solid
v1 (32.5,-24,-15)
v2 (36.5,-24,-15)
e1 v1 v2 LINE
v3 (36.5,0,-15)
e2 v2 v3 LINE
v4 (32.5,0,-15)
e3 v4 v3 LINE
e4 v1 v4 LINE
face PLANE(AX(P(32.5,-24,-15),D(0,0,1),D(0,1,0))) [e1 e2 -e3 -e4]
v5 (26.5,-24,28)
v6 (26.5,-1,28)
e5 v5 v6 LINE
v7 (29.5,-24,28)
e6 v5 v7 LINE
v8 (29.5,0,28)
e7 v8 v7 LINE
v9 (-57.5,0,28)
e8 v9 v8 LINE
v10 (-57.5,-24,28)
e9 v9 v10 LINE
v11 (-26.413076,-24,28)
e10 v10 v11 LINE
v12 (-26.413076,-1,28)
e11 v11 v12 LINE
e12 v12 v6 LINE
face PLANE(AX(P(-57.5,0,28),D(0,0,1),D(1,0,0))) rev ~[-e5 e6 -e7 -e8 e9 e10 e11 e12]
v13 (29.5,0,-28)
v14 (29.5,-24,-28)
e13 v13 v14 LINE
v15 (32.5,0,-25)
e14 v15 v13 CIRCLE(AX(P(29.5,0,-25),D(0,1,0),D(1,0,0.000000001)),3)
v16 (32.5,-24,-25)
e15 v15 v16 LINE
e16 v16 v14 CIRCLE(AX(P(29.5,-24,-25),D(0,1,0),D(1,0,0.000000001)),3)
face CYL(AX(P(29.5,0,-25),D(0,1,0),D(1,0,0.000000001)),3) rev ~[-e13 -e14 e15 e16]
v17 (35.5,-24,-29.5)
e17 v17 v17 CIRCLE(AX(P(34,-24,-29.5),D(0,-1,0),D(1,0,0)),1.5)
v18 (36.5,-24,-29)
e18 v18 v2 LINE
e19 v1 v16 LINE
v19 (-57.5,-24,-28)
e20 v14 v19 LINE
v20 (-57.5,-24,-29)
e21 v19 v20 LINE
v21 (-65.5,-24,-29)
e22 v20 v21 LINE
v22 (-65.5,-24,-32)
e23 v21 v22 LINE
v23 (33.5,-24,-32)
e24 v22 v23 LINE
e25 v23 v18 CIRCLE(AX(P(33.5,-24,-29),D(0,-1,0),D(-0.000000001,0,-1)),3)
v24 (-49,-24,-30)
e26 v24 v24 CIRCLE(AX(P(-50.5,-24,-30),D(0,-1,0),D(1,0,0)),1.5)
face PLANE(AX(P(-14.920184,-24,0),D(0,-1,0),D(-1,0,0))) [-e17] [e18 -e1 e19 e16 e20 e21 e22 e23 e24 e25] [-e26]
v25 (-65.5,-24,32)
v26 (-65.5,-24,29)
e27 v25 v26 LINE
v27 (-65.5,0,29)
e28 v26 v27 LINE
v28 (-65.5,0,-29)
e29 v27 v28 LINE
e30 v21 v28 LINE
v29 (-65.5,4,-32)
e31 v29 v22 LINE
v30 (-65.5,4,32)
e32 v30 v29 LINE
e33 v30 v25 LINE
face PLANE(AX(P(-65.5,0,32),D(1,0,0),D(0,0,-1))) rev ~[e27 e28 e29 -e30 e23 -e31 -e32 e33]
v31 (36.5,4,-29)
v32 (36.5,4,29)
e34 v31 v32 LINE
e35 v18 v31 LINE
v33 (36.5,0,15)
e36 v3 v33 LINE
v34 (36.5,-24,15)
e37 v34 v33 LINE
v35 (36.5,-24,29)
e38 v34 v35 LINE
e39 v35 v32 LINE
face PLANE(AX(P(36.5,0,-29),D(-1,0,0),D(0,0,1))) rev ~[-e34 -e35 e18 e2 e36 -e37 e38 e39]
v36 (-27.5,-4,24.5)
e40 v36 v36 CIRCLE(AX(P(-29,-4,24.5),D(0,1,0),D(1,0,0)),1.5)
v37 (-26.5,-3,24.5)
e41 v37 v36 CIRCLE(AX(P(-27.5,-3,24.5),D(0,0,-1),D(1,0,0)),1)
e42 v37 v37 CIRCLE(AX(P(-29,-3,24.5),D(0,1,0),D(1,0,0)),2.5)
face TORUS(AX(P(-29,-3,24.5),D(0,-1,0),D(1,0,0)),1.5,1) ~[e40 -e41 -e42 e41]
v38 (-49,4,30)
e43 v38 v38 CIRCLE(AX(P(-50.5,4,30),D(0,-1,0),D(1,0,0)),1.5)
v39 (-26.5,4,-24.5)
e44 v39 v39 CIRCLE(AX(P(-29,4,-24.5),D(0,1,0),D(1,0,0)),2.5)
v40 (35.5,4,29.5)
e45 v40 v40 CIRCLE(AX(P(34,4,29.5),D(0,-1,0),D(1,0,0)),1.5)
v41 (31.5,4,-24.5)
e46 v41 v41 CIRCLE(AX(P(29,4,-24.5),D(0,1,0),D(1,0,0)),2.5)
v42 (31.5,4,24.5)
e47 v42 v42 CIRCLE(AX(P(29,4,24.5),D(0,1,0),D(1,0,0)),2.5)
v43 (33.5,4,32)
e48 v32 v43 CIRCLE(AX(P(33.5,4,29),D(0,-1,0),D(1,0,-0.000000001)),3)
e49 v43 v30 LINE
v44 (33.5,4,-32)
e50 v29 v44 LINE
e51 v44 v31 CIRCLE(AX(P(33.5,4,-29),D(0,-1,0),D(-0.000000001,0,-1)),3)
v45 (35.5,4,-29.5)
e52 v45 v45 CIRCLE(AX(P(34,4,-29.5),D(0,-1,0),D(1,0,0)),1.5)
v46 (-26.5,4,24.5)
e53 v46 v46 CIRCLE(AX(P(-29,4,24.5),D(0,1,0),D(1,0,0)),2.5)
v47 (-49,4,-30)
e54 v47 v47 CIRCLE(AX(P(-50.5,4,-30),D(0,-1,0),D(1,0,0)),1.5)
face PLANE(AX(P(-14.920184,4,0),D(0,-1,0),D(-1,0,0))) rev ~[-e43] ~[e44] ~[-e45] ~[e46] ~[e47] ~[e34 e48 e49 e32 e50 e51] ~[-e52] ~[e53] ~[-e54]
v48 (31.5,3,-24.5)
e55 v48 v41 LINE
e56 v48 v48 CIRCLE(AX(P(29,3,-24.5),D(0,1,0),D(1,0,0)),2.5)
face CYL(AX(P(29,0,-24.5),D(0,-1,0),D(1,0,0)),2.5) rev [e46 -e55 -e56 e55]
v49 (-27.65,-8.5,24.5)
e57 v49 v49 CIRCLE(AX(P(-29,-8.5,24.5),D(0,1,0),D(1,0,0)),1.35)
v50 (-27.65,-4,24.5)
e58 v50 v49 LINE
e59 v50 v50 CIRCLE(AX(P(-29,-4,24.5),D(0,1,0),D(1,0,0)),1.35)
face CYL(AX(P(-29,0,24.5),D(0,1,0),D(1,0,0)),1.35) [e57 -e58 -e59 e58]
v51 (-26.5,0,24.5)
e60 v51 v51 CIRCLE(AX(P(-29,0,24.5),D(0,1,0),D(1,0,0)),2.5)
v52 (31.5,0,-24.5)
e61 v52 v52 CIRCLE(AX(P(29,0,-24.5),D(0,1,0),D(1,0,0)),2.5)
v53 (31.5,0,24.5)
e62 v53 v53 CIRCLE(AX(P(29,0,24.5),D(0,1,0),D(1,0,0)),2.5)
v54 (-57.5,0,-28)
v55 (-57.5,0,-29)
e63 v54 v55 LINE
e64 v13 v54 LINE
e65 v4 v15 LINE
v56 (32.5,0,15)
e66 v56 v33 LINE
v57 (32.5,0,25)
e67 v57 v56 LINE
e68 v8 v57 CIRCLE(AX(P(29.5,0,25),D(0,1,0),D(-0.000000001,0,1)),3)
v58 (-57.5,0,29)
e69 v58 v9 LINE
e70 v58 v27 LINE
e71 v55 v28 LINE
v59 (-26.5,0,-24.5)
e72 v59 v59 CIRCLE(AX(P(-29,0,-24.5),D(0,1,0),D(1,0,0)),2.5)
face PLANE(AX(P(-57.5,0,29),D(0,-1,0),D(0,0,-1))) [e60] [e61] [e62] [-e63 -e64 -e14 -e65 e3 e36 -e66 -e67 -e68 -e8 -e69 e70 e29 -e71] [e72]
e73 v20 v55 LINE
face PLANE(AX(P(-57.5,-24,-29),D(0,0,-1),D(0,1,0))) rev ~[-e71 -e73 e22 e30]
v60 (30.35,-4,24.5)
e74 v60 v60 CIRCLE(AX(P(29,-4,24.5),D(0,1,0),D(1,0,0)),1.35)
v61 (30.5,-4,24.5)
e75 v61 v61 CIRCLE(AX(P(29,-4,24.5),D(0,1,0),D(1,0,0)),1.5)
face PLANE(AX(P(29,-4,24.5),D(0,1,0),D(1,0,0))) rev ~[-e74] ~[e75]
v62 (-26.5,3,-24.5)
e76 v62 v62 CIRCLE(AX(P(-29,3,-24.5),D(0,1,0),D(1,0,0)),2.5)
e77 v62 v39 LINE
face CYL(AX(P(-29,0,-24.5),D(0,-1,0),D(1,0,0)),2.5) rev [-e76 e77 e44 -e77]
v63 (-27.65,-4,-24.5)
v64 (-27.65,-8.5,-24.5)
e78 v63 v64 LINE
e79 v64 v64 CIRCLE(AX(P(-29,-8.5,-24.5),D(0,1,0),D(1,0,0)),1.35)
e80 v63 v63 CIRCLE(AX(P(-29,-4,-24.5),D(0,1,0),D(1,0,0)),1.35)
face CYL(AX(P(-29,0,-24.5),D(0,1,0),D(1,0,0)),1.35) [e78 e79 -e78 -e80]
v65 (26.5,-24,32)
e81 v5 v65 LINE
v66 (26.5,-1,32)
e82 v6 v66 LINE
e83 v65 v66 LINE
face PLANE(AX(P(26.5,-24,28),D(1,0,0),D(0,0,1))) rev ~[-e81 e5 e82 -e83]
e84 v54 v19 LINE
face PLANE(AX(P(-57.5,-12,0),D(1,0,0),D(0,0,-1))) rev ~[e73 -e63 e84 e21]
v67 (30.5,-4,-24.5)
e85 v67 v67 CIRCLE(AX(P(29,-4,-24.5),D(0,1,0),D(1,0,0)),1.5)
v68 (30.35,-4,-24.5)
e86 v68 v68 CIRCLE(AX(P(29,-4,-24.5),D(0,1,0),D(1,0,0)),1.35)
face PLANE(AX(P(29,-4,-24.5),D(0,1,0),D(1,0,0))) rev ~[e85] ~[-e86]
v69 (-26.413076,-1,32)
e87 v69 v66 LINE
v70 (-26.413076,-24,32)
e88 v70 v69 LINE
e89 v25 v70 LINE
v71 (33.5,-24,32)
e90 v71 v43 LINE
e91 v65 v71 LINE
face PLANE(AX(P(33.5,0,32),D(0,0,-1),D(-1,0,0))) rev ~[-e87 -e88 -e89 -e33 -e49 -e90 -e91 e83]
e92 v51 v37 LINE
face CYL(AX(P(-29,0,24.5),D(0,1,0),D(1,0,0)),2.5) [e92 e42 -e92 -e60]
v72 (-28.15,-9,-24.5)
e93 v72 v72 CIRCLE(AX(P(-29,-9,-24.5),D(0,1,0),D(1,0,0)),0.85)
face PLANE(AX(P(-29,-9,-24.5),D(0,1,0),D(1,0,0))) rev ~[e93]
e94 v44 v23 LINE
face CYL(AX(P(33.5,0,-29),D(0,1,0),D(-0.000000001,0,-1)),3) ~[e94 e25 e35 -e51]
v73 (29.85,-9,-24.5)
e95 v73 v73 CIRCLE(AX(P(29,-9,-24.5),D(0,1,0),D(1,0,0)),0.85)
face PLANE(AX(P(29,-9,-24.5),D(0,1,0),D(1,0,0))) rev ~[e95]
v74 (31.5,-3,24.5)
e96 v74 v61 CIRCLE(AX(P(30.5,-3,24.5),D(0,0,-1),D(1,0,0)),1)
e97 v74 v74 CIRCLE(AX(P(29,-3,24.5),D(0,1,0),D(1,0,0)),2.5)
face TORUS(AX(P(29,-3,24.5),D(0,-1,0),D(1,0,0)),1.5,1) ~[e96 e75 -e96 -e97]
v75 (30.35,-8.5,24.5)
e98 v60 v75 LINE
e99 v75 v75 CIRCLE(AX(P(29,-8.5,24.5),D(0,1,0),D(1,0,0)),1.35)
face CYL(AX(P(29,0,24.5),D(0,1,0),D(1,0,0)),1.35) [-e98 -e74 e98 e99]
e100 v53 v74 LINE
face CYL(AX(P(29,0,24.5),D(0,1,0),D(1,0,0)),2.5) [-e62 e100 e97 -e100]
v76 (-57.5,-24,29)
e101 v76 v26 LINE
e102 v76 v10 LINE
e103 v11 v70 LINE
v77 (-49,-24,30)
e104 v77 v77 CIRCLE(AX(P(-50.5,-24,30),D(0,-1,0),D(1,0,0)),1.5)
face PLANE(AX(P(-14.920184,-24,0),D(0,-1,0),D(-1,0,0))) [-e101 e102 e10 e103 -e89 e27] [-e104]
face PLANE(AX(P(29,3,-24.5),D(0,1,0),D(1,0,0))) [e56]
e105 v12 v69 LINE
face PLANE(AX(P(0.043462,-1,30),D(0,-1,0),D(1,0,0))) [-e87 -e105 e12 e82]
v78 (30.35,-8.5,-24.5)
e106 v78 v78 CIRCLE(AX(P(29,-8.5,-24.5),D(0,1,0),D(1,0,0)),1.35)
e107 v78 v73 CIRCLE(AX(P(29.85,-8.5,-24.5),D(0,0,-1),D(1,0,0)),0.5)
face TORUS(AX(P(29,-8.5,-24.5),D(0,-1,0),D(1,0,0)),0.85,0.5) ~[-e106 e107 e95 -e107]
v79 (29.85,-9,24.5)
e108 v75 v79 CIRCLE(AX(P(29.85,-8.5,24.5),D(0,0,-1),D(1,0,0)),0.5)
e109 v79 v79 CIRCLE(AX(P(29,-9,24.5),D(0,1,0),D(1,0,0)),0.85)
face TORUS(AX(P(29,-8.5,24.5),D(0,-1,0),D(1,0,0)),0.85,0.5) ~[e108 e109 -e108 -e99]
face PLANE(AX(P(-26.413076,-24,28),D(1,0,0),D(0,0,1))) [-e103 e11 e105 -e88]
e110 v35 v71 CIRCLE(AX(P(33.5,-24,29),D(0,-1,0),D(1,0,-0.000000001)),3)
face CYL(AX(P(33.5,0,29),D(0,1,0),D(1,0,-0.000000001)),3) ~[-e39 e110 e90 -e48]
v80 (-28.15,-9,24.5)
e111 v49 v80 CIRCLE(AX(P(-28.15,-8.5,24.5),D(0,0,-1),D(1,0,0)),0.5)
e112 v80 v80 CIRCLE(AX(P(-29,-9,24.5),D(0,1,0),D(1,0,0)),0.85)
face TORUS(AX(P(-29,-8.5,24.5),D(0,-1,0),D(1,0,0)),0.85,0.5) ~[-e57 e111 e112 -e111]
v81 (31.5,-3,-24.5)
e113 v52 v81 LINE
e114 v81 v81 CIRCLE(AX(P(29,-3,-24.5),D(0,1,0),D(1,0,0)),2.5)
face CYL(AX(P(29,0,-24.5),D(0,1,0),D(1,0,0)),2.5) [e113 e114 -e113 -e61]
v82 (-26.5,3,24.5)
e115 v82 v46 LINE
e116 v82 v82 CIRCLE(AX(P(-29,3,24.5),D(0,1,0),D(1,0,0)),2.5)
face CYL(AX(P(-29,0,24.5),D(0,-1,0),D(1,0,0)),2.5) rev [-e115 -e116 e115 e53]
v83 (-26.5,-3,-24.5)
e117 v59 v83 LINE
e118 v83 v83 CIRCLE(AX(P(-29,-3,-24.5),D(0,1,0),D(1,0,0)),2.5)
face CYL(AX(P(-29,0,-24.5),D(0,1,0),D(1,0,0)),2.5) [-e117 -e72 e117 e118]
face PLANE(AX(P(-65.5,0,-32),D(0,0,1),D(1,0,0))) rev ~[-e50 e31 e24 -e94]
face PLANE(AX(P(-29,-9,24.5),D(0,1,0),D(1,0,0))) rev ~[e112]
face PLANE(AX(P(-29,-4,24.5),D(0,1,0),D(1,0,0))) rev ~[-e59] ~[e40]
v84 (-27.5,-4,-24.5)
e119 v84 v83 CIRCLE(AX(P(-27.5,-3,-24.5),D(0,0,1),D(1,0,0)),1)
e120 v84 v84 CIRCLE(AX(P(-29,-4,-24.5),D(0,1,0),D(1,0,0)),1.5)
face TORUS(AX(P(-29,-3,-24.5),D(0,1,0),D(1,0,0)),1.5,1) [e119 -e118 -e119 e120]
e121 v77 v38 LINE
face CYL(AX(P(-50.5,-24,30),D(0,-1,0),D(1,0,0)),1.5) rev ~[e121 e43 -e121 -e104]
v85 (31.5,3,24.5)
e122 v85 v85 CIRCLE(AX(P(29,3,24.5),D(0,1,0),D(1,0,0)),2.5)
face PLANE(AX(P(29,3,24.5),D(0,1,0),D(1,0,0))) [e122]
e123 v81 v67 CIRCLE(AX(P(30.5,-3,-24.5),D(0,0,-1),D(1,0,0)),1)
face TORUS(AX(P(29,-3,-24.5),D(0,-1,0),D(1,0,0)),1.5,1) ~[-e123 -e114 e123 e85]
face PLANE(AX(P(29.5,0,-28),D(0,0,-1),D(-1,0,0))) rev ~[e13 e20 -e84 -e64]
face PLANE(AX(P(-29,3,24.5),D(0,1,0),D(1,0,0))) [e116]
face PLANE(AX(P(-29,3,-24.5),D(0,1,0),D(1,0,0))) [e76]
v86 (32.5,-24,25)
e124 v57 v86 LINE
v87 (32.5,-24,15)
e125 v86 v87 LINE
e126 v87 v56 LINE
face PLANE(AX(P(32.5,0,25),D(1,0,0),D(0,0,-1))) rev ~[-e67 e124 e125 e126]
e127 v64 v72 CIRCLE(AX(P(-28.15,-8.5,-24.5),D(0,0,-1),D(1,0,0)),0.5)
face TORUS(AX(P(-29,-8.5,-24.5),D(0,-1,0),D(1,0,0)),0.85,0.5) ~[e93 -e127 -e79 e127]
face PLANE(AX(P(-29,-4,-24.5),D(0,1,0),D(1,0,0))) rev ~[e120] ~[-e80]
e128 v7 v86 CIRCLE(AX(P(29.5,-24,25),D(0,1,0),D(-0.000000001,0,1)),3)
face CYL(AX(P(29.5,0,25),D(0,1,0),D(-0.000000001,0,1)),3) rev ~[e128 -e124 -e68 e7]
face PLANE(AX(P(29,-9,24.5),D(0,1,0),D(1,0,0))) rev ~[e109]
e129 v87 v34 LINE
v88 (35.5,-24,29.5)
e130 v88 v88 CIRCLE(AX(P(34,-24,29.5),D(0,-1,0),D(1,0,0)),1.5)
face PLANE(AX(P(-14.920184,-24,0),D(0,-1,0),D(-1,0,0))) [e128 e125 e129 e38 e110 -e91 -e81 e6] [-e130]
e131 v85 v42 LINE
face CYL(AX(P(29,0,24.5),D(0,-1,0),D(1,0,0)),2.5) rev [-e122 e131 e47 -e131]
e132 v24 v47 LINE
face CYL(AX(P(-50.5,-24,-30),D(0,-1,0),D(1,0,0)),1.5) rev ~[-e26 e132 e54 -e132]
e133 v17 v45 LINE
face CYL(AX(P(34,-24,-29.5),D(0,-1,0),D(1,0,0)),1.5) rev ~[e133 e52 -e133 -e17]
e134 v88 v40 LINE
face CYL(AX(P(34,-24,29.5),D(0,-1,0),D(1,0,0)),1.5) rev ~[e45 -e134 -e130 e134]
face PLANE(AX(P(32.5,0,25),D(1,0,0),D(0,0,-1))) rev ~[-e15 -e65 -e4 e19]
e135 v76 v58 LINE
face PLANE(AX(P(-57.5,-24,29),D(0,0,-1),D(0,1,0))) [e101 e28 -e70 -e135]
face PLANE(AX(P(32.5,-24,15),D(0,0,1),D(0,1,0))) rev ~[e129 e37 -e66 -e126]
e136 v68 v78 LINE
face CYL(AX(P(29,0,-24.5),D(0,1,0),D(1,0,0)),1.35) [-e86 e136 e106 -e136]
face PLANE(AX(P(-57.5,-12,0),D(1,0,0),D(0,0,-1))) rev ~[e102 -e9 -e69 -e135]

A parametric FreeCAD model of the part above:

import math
import FreeCAD as App
import Part
import Sketcher


def edges_at(feature, points):
    """Names of the edges that pass closest to the given points."""
    edges = feature.Shape.Edges
    near = lambda p: min(range(len(edges)), key=lambda i: edges[i].distToShape(Part.Vertex(*p))[0])
    return sorted({f"Edge{near(p) + 1}" for p in points})


def add_polygon(sketch, points):
    """Adds a closed chain of lines whose ends are joined by coincident constraints."""
    first, n = sketch.GeometryCount, len(points)
    for a, b in zip(points, points[1:] + points[:1]):
        sketch.addGeometry(Part.LineSegment(App.Vector(*a, 0), App.Vector(*b, 0)), False)
    for i in range(n):
        sketch.addConstraint(Sketcher.Constraint("Coincident", first + i, 2, first + (i + 1) % n, 1))

doc = App.newDocument("Part")
body = doc.addObject("PartDesign::Body", "Body")

# Sketch on XZ plane
sketch1 = body.newObject("Sketcher::SketchObject", "Sketch")
sketch1.AttachmentSupport = (doc.getObject("XZ_Plane"), [""])
sketch1.MapMode = "FlatFace"
sketch1.addGeometry(Part.Circle(App.Vector(-29, -24.5, 0), App.Vector(0, 0, 1), 1.4), False)
sketch1.addConstraint(Sketcher.Constraint("Diameter", 0, 2.7))
sketch1.addConstraint(Sketcher.Constraint("DistanceX", 0, 3, -1, 1, 29.0))
sketch1.addConstraint(Sketcher.Constraint("DistanceY", 0, 3, -1, 1, 24.5))
pad1 = body.newObject("PartDesign::Pad", "Pad")
pad1.Profile = sketch1
pad1.Length = 4
pad1.Reversed = True
body2 = doc.addObject("PartDesign::Body", "Body001")

# Sketch on XZ plane
sketch2 = body2.newObject("Sketcher::SketchObject", "Sketch001")
sketch2.AttachmentSupport = (doc.getObject("XZ_Plane001"), [""])
sketch2.MapMode = "FlatFace"
sketch2.addGeometry(Part.Circle(App.Vector(29, -24.5, 0), App.Vector(0, 0, 1), 1.4), False)
sketch2.addConstraint(Sketcher.Constraint("Diameter", 0, 2.7))
sketch2.addConstraint(Sketcher.Constraint("DistanceX", -1, 1, 0, 3, 29.0))
sketch2.addConstraint(Sketcher.Constraint("DistanceY", 0, 3, -1, 1, 24.5))
pad2 = body2.newObject("PartDesign::Pad", "Pad001")
pad2.Profile = sketch2
pad2.Length = 4
pad2.Reversed = True
body3 = doc.addObject("PartDesign::Body", "Body002")

# Sketch on XZ plane
sketch3 = body3.newObject("Sketcher::SketchObject", "Sketch002")
sketch3.AttachmentSupport = (doc.getObject("XZ_Plane002"), [""])
sketch3.MapMode = "FlatFace"
sketch3.addGeometry(Part.Circle(App.Vector(29, 24.5, 0), App.Vector(0, 0, 1), 1.4), False)
sketch3.addConstraint(Sketcher.Constraint("Diameter", 0, 2.7))
sketch3.addConstraint(Sketcher.Constraint("DistanceX", -1, 1, 0, 3, 29.0))
sketch3.addConstraint(Sketcher.Constraint("DistanceY", -1, 1, 0, 3, 24.5))
pad3 = body3.newObject("PartDesign::Pad", "Pad002")
pad3.Profile = sketch3
pad3.Length = 4
pad3.Reversed = True
body4 = doc.addObject("PartDesign::Body", "Body003")

# Sketch on XZ plane
sketch4 = body4.newObject("Sketcher::SketchObject", "Sketch003")
sketch4.AttachmentSupport = (doc.getObject("XZ_Plane003"), [""])
sketch4.MapMode = "FlatFace"
sketch4.addGeometry(Part.Circle(App.Vector(-29, 24.5, 0), App.Vector(0, 0, 1), 1.4), False)
sketch4.addConstraint(Sketcher.Constraint("Diameter", 0, 2.7))
sketch4.addConstraint(Sketcher.Constraint("DistanceX", 0, 3, -1, 1, 29.0))
sketch4.addConstraint(Sketcher.Constraint("DistanceY", -1, 1, 0, 3, 24.5))
pad4 = body4.newObject("PartDesign::Pad", "Pad003")
pad4.Profile = sketch4
pad4.Length = 4
pad4.Reversed = True
body5 = doc.addObject("PartDesign::Body", "Body004")

# Sketch on XZ plane
sketch5 = body5.newObject("Sketcher::SketchObject", "Sketch004")
sketch5.AttachmentSupport = (doc.getObject("XZ_Plane004"), [""])
sketch5.MapMode = "FlatFace"
sketch5.addGeometry(Part.LineSegment(App.Vector(-65.5, 32, 0), App.Vector(33.5, 32, 0)), False)
sketch5.addGeometry(Part.ArcOfCircle(Part.Circle(App.Vector(33.5, 29, 0), App.Vector(0, 0, 1), 3), math.radians(0), math.radians(90)), False)
sketch5.addGeometry(Part.LineSegment(App.Vector(36.5, 29, 0), App.Vector(36.5, -29, 0)), False)
sketch5.addGeometry(Part.ArcOfCircle(Part.Circle(App.Vector(33.5, -29, 0), App.Vector(0, 0, 1), 3), math.radians(-90), math.radians(0)), False)
sketch5.addGeometry(Part.LineSegment(App.Vector(33.5, -32, 0), App.Vector(-65.5, -32, 0)), False)
sketch5.addGeometry(Part.LineSegment(App.Vector(-65.5, -32, 0), App.Vector(-65.5, 32, 0)), False)
sketch5.addGeometry(Part.Circle(App.Vector(29, 24.5, 0), App.Vector(0, 0, 1), 2.5), False)
sketch5.addGeometry(Part.Circle(App.Vector(-29, 24.5, 0), App.Vector(0, 0, 1), 2.5), False)
sketch5.addGeometry(Part.Circle(App.Vector(29, -24.5, 0), App.Vector(0, 0, 1), 2.5), False)
sketch5.addGeometry(Part.Circle(App.Vector(-29, -24.5, 0), App.Vector(0, 0, 1), 2.5), False)
sketch5.addConstraint(Sketcher.Constraint("Tangent", 0, 2, 1, 2))
sketch5.addConstraint(Sketcher.Constraint("Tangent", 1, 1, 2, 1))
sketch5.addConstraint(Sketcher.Constraint("Tangent", 2, 2, 3, 2))
sketch5.addConstraint(Sketcher.Constraint("Tangent", 3, 1, 4, 1))
sketch5.addConstraint(Sketcher.Constraint("Coincident", 4, 2, 5, 1))
sketch5.addConstraint(Sketcher.Constraint("Coincident", 5, 2, 0, 1))
sketch5.addConstraint(Sketcher.Constraint("Horizontal", 0))
sketch5.addConstraint(Sketcher.Constraint("Vertical", 2))
sketch5.addConstraint(Sketcher.Constraint("Horizontal", 4))
sketch5.addConstraint(Sketcher.Constraint("Vertical", 5))
sketch5.addConstraint(Sketcher.Constraint("Equal", 1, 3))
sketch5.addConstraint(Sketcher.Constraint("Equal", 6, 7))
sketch5.addConstraint(Sketcher.Constraint("Equal", 7, 8))
sketch5.addConstraint(Sketcher.Constraint("Equal", 8, 9))
sketch5.addConstraint(Sketcher.Constraint("Symmetric", 7, 3, 8, 3, -1, 1))
sketch5.addConstraint(Sketcher.Constraint("Symmetric", 6, 3, 9, 3, -1, 1))
sketch5.addConstraint(Sketcher.Constraint("Symmetric", 6, 3, 7, 3, -2))
sketch5.addConstraint(Sketcher.Constraint("Diameter", 6, 5.0))
sketch5.addConstraint(Sketcher.Constraint("Radius", 1, 3.0))
sketch5.addConstraint(Sketcher.Constraint("DistanceX", 0, 1, 0, 2, 99.0))
sketch5.addConstraint(Sketcher.Constraint("DistanceY", 2, 2, 2, 1, 58.0))
sketch5.addConstraint(Sketcher.Constraint("DistanceY", -1, 1, 1, 3, 29.0))
sketch5.addConstraint(Sketcher.Constraint("DistanceX", -1, 1, 6, 3, 29.0))
sketch5.addConstraint(Sketcher.Constraint("DistanceY", 8, 3, 6, 3, 49.0))
sketch5.addConstraint(Sketcher.Constraint("DistanceX", -1, 1, 1, 3, 33.5))
pad5 = body5.newObject("PartDesign::Pad", "Pad004")
pad5.Profile = sketch5
pad5.Length = 4
pad5.Reversed = True
body6 = doc.addObject("PartDesign::Body", "Body005")

# Sketch on XZ plane
sketch6 = body6.newObject("Sketcher::SketchObject", "Sketch005")
sketch6.AttachmentSupport = (doc.getObject("XZ_Plane005"), [""])
sketch6.MapMode = "FlatFace"
sketch6.addGeometry(Part.Circle(App.Vector(-29, -24.5, 0), App.Vector(0, 0, 1), 2.5), False)
sketch6.addGeometry(Part.Circle(App.Vector(-29, -24.5, 0), App.Vector(0, 0, 1), 1.4), False)
sketch6.addConstraint(Sketcher.Constraint("Coincident", 1, 3, 0, 3))
sketch6.addConstraint(Sketcher.Constraint("Diameter", 0, 5.0))
sketch6.addConstraint(Sketcher.Constraint("Diameter", 1, 2.7))
sketch6.addConstraint(Sketcher.Constraint("DistanceX", 0, 3, -1, 1, 29.0))
sketch6.addConstraint(Sketcher.Constraint("DistanceY", 0, 3, -1, 1, 24.5))
pad6 = body6.newObject("PartDesign::Pad", "Pad005")
pad6.Profile = sketch6
pad6.Length = 4
body7 = doc.addObject("PartDesign::Body", "Body006")

# Sketch on XZ plane
sketch7 = body7.newObject("Sketcher::SketchObject", "Sketch006")
sketch7.AttachmentSupport = (doc.getObject("XZ_Plane006"), [""])
sketch7.MapMode = "FlatFace"
sketch7.addGeometry(Part.Circle(App.Vector(-29, 24.5, 0), App.Vector(0, 0, 1), 2.5), False)
sketch7.addGeometry(Part.Circle(App.Vector(-29, 24.5, 0), App.Vector(0, 0, 1), 1.4), False)
sketch7.addConstraint(Sketcher.Constraint("Coincident", 1, 3, 0, 3))
sketch7.addConstraint(Sketcher.Constraint("Diameter", 0, 5.0))
sketch7.addConstraint(Sketcher.Constraint("Diameter", 1, 2.7))
sketch7.addConstraint(Sketcher.Constraint("DistanceX", 0, 3, -1, 1, 29.0))
sketch7.addConstraint(Sketcher.Constraint("DistanceY", -1, 1, 0, 3, 24.5))
pad7 = body7.newObject("PartDesign::Pad", "Pad006")
pad7.Profile = sketch7
pad7.Length = 4
body8 = doc.addObject("PartDesign::Body", "Body007")

# Sketch on XZ plane
sketch8 = body8.newObject("Sketcher::SketchObject", "Sketch007")
sketch8.AttachmentSupport = (doc.getObject("XZ_Plane007"), [""])
sketch8.MapMode = "FlatFace"
sketch8.addGeometry(Part.Circle(App.Vector(29, 24.5, 0), App.Vector(0, 0, 1), 2.5), False)
sketch8.addGeometry(Part.Circle(App.Vector(29, 24.5, 0), App.Vector(0, 0, 1), 1.4), False)
sketch8.addConstraint(Sketcher.Constraint("Coincident", 1, 3, 0, 3))
sketch8.addConstraint(Sketcher.Constraint("Diameter", 0, 5.0))
sketch8.addConstraint(Sketcher.Constraint("Diameter", 1, 2.7))
sketch8.addConstraint(Sketcher.Constraint("DistanceX", -1, 1, 0, 3, 29.0))
sketch8.addConstraint(Sketcher.Constraint("DistanceY", -1, 1, 0, 3, 24.5))
pad8 = body8.newObject("PartDesign::Pad", "Pad007")
pad8.Profile = sketch8
pad8.Length = 4
body9 = doc.addObject("PartDesign::Body", "Body008")

# Sketch on XZ plane
sketch9 = body9.newObject("Sketcher::SketchObject", "Sketch008")
sketch9.AttachmentSupport = (doc.getObject("XZ_Plane008"), [""])
sketch9.MapMode = "FlatFace"
sketch9.addGeometry(Part.Circle(App.Vector(29, -24.5, 0), App.Vector(0, 0, 1), 2.5), False)
sketch9.addGeometry(Part.Circle(App.Vector(29, -24.5, 0), App.Vector(0, 0, 1), 1.4), False)
sketch9.addConstraint(Sketcher.Constraint("Coincident", 1, 3, 0, 3))
sketch9.addConstraint(Sketcher.Constraint("Diameter", 0, 5.0))
sketch9.addConstraint(Sketcher.Constraint("Diameter", 1, 2.7))
sketch9.addConstraint(Sketcher.Constraint("DistanceX", -1, 1, 0, 3, 29.0))
sketch9.addConstraint(Sketcher.Constraint("DistanceY", 0, 3, -1, 1, 24.5))
pad9 = body9.newObject("PartDesign::Pad", "Pad008")
pad9.Profile = sketch9
pad9.Length = 4
body10 = doc.addObject("PartDesign::Body", "Body009")
body10.AllowCompound = True

# Sketch on XZ plane
sketch10 = body10.newObject("Sketcher::SketchObject", "Sketch009")
sketch10.AttachmentSupport = (doc.getObject("XZ_Plane009"), [""])
sketch10.MapMode = "FlatFace"
sketch10.addGeometry(Part.Circle(App.Vector(-29, -24.5, 0), App.Vector(0, 0, 1), 1.4), False)
sketch10.addGeometry(Part.Circle(App.Vector(-29, 24.5, 0), App.Vector(0, 0, 1), 1.4), False)
sketch10.addGeometry(Part.Circle(App.Vector(29, 24.5, 0), App.Vector(0, 0, 1), 1.4), False)
sketch10.addGeometry(Part.Circle(App.Vector(29, -24.5, 0), App.Vector(0, 0, 1), 1.4), False)
sketch10.addConstraint(Sketcher.Constraint("Equal", 0, 1))
sketch10.addConstraint(Sketcher.Constraint("Equal", 1, 2))
sketch10.addConstraint(Sketcher.Constraint("Equal", 2, 3))
sketch10.addConstraint(Sketcher.Constraint("Symmetric", 0, 3, 2, 3, -1, 1))
sketch10.addConstraint(Sketcher.Constraint("Symmetric", 1, 3, 3, 3, -1, 1))
sketch10.addConstraint(Sketcher.Constraint("Symmetric", 1, 3, 2, 3, -2))
sketch10.addConstraint(Sketcher.Constraint("Diameter", 0, 2.7))
sketch10.addConstraint(Sketcher.Constraint("DistanceX", 0, 3, -1, 1, 29.0))
sketch10.addConstraint(Sketcher.Constraint("DistanceY", 0, 3, 1, 3, 49.0))
pad10 = body10.newObject("PartDesign::Pad", "Pad009")
pad10.Profile = sketch10
pad10.Type = "TwoLengths"
pad10.Length = 5
pad10.Length2 = 5
doc.recompute()

body11 = doc.addObject("PartDesign::Body", "Body010")
body11.BaseFeature = body10
boolean = body.newObject("PartDesign::Boolean", "Boolean")
boolean.Type = "Cut"
boolean.addObjects([body11])
doc.recompute()

body12 = doc.addObject("PartDesign::Body", "Body011")
body12.BaseFeature = body10
boolean2 = body2.newObject("PartDesign::Boolean", "Boolean001")
boolean2.Type = "Cut"
boolean2.addObjects([body12])
doc.recompute()

body13 = doc.addObject("PartDesign::Body", "Body012")
body13.BaseFeature = body10
boolean3 = body3.newObject("PartDesign::Boolean", "Boolean002")
boolean3.Type = "Cut"
boolean3.addObjects([body13])
doc.recompute()

boolean4 = body4.newObject("PartDesign::Boolean", "Boolean003")
boolean4.Type = "Cut"
boolean4.addObjects([body10])
body5.AllowCompound = True
doc.recompute()

boolean5 = body5.newObject("PartDesign::Boolean", "Boolean004")
boolean5.Type = "Fuse"
boolean5.addObjects([body6])
doc.recompute()

boolean6 = body5.newObject("PartDesign::Boolean", "Boolean005")
boolean6.Type = "Fuse"
boolean6.addObjects([body7])
doc.recompute()

boolean7 = body5.newObject("PartDesign::Boolean", "Boolean006")
boolean7.Type = "Fuse"
boolean7.addObjects([body8])
doc.recompute()

boolean8 = body5.newObject("PartDesign::Boolean", "Boolean007")
boolean8.Type = "Fuse"
boolean8.addObjects([body9])

# Sketch on XZ plane
sketch11 = body5.newObject("Sketcher::SketchObject", "Sketch010")
sketch11.AttachmentSupport = (doc.getObject("XZ_Plane004"), [""])
sketch11.MapMode = "FlatFace"
sketch11.addGeometry(Part.Circle(App.Vector(-29, -24.5, 0), App.Vector(0, 0, 1), 2.5), False)
sketch11.addGeometry(Part.Circle(App.Vector(-29, -24.5, 0), App.Vector(0, 0, 1), 1.4), False)
sketch11.addGeometry(Part.Circle(App.Vector(29, -24.5, 0), App.Vector(0, 0, 1), 2.5), False)
sketch11.addGeometry(Part.Circle(App.Vector(29, -24.5, 0), App.Vector(0, 0, 1), 1.4), False)
sketch11.addGeometry(Part.Circle(App.Vector(29, 24.5, 0), App.Vector(0, 0, 1), 2.5), False)
sketch11.addGeometry(Part.Circle(App.Vector(29, 24.5, 0), App.Vector(0, 0, 1), 1.4), False)
sketch11.addGeometry(Part.Circle(App.Vector(-29, 24.5, 0), App.Vector(0, 0, 1), 2.5), False)
sketch11.addGeometry(Part.Circle(App.Vector(-29, 24.5, 0), App.Vector(0, 0, 1), 1.4), False)
sketch11.addConstraint(Sketcher.Constraint("Coincident", 1, 3, 0, 3))
sketch11.addConstraint(Sketcher.Constraint("Coincident", 3, 3, 2, 3))
sketch11.addConstraint(Sketcher.Constraint("Coincident", 5, 3, 4, 3))
sketch11.addConstraint(Sketcher.Constraint("Coincident", 7, 3, 6, 3))
sketch11.addConstraint(Sketcher.Constraint("Equal", 0, 2))
sketch11.addConstraint(Sketcher.Constraint("Equal", 1, 3))
sketch11.addConstraint(Sketcher.Constraint("Equal", 2, 4))
sketch11.addConstraint(Sketcher.Constraint("Equal", 3, 5))
sketch11.addConstraint(Sketcher.Constraint("Equal", 4, 6))
sketch11.addConstraint(Sketcher.Constraint("Equal", 5, 7))
sketch11.addConstraint(Sketcher.Constraint("Symmetric", 0, 3, 4, 3, -1, 1))
sketch11.addConstraint(Sketcher.Constraint("Symmetric", 2, 3, 6, 3, -1, 1))
sketch11.addConstraint(Sketcher.Constraint("Symmetric", 0, 3, 2, 3, -2))
sketch11.addConstraint(Sketcher.Constraint("Diameter", 0, 5.0))
sketch11.addConstraint(Sketcher.Constraint("Diameter", 1, 2.7))
sketch11.addConstraint(Sketcher.Constraint("DistanceX", 0, 3, -1, 1, 29.0))
sketch11.addConstraint(Sketcher.Constraint("DistanceY", 2, 3, 4, 3, 49.0))
pad11 = body5.newObject("PartDesign::Pad", "Pad010")
pad11.Profile = sketch11
pad11.Length = 3
pad11.Reversed = True

# Sketch on XZ plane
sketch12 = body5.newObject("Sketcher::SketchObject", "Sketch011")
sketch12.AttachmentSupport = (doc.getObject("XZ_Plane004"), [""])
sketch12.MapMode = "FlatFace"
sketch12.addGeometry(Part.LineSegment(App.Vector(-65.5, 32, 0), App.Vector(33.5, 32, 0)), False)
sketch12.addGeometry(Part.ArcOfCircle(Part.Circle(App.Vector(33.5, 29, 0), App.Vector(0, 0, 1), 3), math.radians(0), math.radians(90)), False)
sketch12.addGeometry(Part.LineSegment(App.Vector(36.5, 29, 0), App.Vector(36.5, -29, 0)), False)
sketch12.addGeometry(Part.ArcOfCircle(Part.Circle(App.Vector(33.5, -29, 0), App.Vector(0, 0, 1), 3), math.radians(-90), math.radians(0)), False)
sketch12.addGeometry(Part.LineSegment(App.Vector(33.5, -32, 0), App.Vector(-65.5, -32, 0)), False)
sketch12.addGeometry(Part.LineSegment(App.Vector(-65.5, -32, 0), App.Vector(-65.5, 32, 0)), False)
sketch12.addGeometry(Part.LineSegment(App.Vector(29.5, 28, 0), App.Vector(-57.5, 28, 0)), False)
sketch12.addGeometry(Part.LineSegment(App.Vector(-57.5, 28, 0), App.Vector(-57.5, -28, 0)), False)
sketch12.addGeometry(Part.LineSegment(App.Vector(-57.5, -28, 0), App.Vector(29.5, -28, 0)), False)
sketch12.addGeometry(Part.ArcOfCircle(Part.Circle(App.Vector(29.5, -25, 0), App.Vector(0, 0, 1), 3), math.radians(-90), math.radians(0)), False)
sketch12.addGeometry(Part.LineSegment(App.Vector(32.5, -25, 0), App.Vector(32.5, 25, 0)), False)
sketch12.addGeometry(Part.ArcOfCircle(Part.Circle(App.Vector(29.5, 25, 0), App.Vector(0, 0, 1), 3), math.radians(0), math.radians(90)), False)
sketch12.addConstraint(Sketcher.Constraint("Tangent", 0, 2, 1, 2))
sketch12.addConstraint(Sketcher.Constraint("Tangent", 1, 1, 2, 1))
sketch12.addConstraint(Sketcher.Constraint("Tangent", 2, 2, 3, 2))
sketch12.addConstraint(Sketcher.Constraint("Tangent", 3, 1, 4, 1))
sketch12.addConstraint(Sketcher.Constraint("Coincident", 4, 2, 5, 1))
sketch12.addConstraint(Sketcher.Constraint("Coincident", 5, 2, 0, 1))
sketch12.addConstraint(Sketcher.Constraint("Coincident", 6, 2, 7, 1))
sketch12.addConstraint(Sketcher.Constraint("Coincident", 7, 2, 8, 1))
sketch12.addConstraint(Sketcher.Constraint("Tangent", 8, 2, 9, 1))
sketch12.addConstraint(Sketcher.Constraint("Tangent", 9, 2, 10, 1))
sketch12.addConstraint(Sketcher.Constraint("Tangent", 10, 2, 11, 1))
sketch12.addConstraint(Sketcher.Constraint("Tangent", 11, 2, 6, 1))
sketch12.addConstraint(Sketcher.Constraint("Horizontal", 0))
sketch12.addConstraint(Sketcher.Constraint("Vertical", 2))
sketch12.addConstraint(Sketcher.Constraint("Horizontal", 4))
sketch12.addConstraint(Sketcher.Constraint("Vertical", 5))
sketch12.addConstraint(Sketcher.Constraint("Horizontal", 6))
sketch12.addConstraint(Sketcher.Constraint("Vertical", 7))
sketch12.addConstraint(Sketcher.Constraint("Horizontal", 8))
sketch12.addConstraint(Sketcher.Constraint("Vertical", 10))
sketch12.addConstraint(Sketcher.Constraint("Equal", 1, 3))
sketch12.addConstraint(Sketcher.Constraint("Equal", 3, 9))
sketch12.addConstraint(Sketcher.Constraint("Equal", 9, 11))
sketch12.addConstraint(Sketcher.Constraint("Radius", 1, 3.0))
sketch12.addConstraint(Sketcher.Constraint("DistanceX", 0, 1, 0, 2, 99.0))
sketch12.addConstraint(Sketcher.Constraint("DistanceX", 6, 2, 6, 1, 87.0))
sketch12.addConstraint(Sketcher.Constraint("DistanceY", 2, 2, 2, 1, 58.0))
sketch12.addConstraint(Sketcher.Constraint("DistanceY", 7, 2, 7, 1, 56.0))
sketch12.addConstraint(Sketcher.Constraint("DistanceY", -1, 1, 1, 3, 29.0))
sketch12.addConstraint(Sketcher.Constraint("DistanceY", 9, 3, -1, 1, 25.0))
sketch12.addConstraint(Sketcher.Constraint("DistanceX", 9, 3, 3, 3, 4.0))
sketch12.addConstraint(Sketcher.Constraint("DistanceX", -1, 1, 1, 3, 33.5))
pad12 = body5.newObject("PartDesign::Pad", "Pad011")
pad12.Profile = sketch12
pad12.Length = 24

# Sketch on YZ plane
sketch13 = body5.newObject("Sketcher::SketchObject", "Sketch012")
sketch13.AttachmentSupport = (doc.getObject("YZ_Plane004"), [""])
sketch13.MapMode = "FlatFace"
sketch13.AttachmentOffset = App.Placement(App.Vector(0, 0, -57.5), App.Rotation())
add_polygon(sketch13, [(0, 29), (-24, 29), (-24, -29), (0, -29)])  # lines 0-3
sketch13.addConstraint(Sketcher.Constraint("Horizontal", 0))
sketch13.addConstraint(Sketcher.Constraint("Vertical", 1))
sketch13.addConstraint(Sketcher.Constraint("Horizontal", 2))
sketch13.addConstraint(Sketcher.Constraint("Vertical", 3))
sketch13.addConstraint(Sketcher.Constraint("Symmetric", 2, 2, 3, 2, -1, 1))
sketch13.addConstraint(Sketcher.Constraint("DistanceX", 0, 2, 0, 1, 24.0))
sketch13.addConstraint(Sketcher.Constraint("DistanceY", 1, 2, 1, 1, 58.0))
pocket1 = body5.newObject("PartDesign::Pocket", "Pocket")
pocket1.Profile = sketch13
pocket1.Type = "ThroughAll"

# Sketch on YZ plane
sketch14 = body5.newObject("Sketcher::SketchObject", "Sketch013")
sketch14.AttachmentSupport = (doc.getObject("YZ_Plane004"), [""])
sketch14.MapMode = "FlatFace"
sketch14.AttachmentOffset = App.Placement(App.Vector(0, 0, 32.5), App.Rotation())
add_polygon(sketch14, [(0, -15), (-24, -15), (-24, 15), (0, 15)])  # lines 0-3
sketch14.addConstraint(Sketcher.Constraint("Horizontal", 0))
sketch14.addConstraint(Sketcher.Constraint("Vertical", 1))
sketch14.addConstraint(Sketcher.Constraint("Horizontal", 2))
sketch14.addConstraint(Sketcher.Constraint("Vertical", 3))
sketch14.addConstraint(Sketcher.Constraint("Symmetric", 2, 2, 3, 2, -1, 1))
sketch14.addConstraint(Sketcher.Constraint("DistanceX", 0, 2, 0, 1, 24.0))
sketch14.addConstraint(Sketcher.Constraint("DistanceY", 1, 1, 1, 2, 30.0))
pocket2 = body5.newObject("PartDesign::Pocket", "Pocket001")
pocket2.Profile = sketch14
pocket2.Type = "ThroughAll"
pocket2.Reversed = True

# Sketch on XZ plane
sketch15 = body5.newObject("Sketcher::SketchObject", "Sketch014")
sketch15.AttachmentSupport = (doc.getObject("XZ_Plane004"), [""])
sketch15.MapMode = "FlatFace"
sketch15.AttachmentOffset = App.Placement(App.Vector(0, 0, 24), App.Rotation())
add_polygon(sketch15, [(-26.4, 32), (-26.4, 28), (26.5, 28), (26.5, 32)])  # lines 0-3
sketch15.addConstraint(Sketcher.Constraint("Vertical", 0))
sketch15.addConstraint(Sketcher.Constraint("Horizontal", 1))
sketch15.addConstraint(Sketcher.Constraint("Vertical", 2))
sketch15.addConstraint(Sketcher.Constraint("Horizontal", 3))
sketch15.addConstraint(Sketcher.Constraint("DistanceY", 0, 2, 0, 1, 4.0))
sketch15.addConstraint(Sketcher.Constraint("DistanceY", -1, 1, 0, 2, 28.0))
sketch15.addConstraint(Sketcher.Constraint("DistanceX", -1, 1, 1, 2, 26.5))
sketch15.addConstraint(Sketcher.Constraint("DistanceX", 1, 1, 1, 2, 52.913076))
pocket3 = body5.newObject("PartDesign::Pocket", "Pocket002")
pocket3.Profile = sketch15
pocket3.Type = "TwoLengths"
pocket3.Length = 1
pocket3.Length2 = 23
pocket3.Reversed = True

# Sketch on XZ plane
sketch16 = body5.newObject("Sketcher::SketchObject", "Sketch015")
sketch16.AttachmentSupport = (doc.getObject("XZ_Plane004"), [""])
sketch16.MapMode = "FlatFace"
sketch16.addGeometry(Part.Circle(App.Vector(29, -24.5, 0), App.Vector(0, 0, 1), 1.4), False)
sketch16.addGeometry(Part.Circle(App.Vector(-29, -24.5, 0), App.Vector(0, 0, 1), 1.4), False)
sketch16.addGeometry(Part.Circle(App.Vector(-29, 24.5, 0), App.Vector(0, 0, 1), 1.4), False)
sketch16.addGeometry(Part.Circle(App.Vector(29, 24.5, 0), App.Vector(0, 0, 1), 1.4), False)
sketch16.addConstraint(Sketcher.Constraint("Equal", 0, 1))
sketch16.addConstraint(Sketcher.Constraint("Equal", 1, 2))
sketch16.addConstraint(Sketcher.Constraint("Equal", 2, 3))
sketch16.addConstraint(Sketcher.Constraint("Symmetric", 0, 3, 2, 3, -1, 1))
sketch16.addConstraint(Sketcher.Constraint("Symmetric", 1, 3, 3, 3, -1, 1))
sketch16.addConstraint(Sketcher.Constraint("Symmetric", 0, 3, 1, 3, -2))
sketch16.addConstraint(Sketcher.Constraint("Diameter", 0, 2.7))
sketch16.addConstraint(Sketcher.Constraint("DistanceX", -1, 1, 0, 3, 29.0))
sketch16.addConstraint(Sketcher.Constraint("DistanceY", 1, 3, 2, 3, 49.0))
pad13 = body5.newObject("PartDesign::Pad", "Pad012")
pad13.Profile = sketch16
pad13.Type = "TwoLengths"
pad13.Length = 3
pad13.Length2 = 9
pad13.Reversed = True
doc.recompute()

fillet = body5.newObject("PartDesign::Fillet", "Fillet")
fillet.Base = (pad13, edges_at(pad13, [(27.65, -9, 24.5)]))
fillet.Radius = 0.5
doc.recompute()

fillet2 = body5.newObject("PartDesign::Fillet", "Fillet001")
fillet2.Base = (fillet, edges_at(fillet, [(27.65, -9, -24.5), (-30.35, -9, -24.5), (-30.35, -9, 24.5)]))
fillet2.Radius = 0.5
doc.recompute()

fillet3 = body5.newObject("PartDesign::Fillet", "Fillet002")
fillet3.Base = (fillet2, edges_at(fillet2, [(-31.5, -4, -24.5)]))
fillet3.Radius = 1
doc.recompute()

fillet4 = body5.newObject("PartDesign::Fillet", "Fillet003")
fillet4.Base = (fillet3, edges_at(fillet3, [(26.5, -4, -24.5), (26.5, -4, 24.5), (-31.5, -4, 24.5)]))
fillet4.Radius = 1

# Sketch on XZ plane
sketch17 = body5.newObject("Sketcher::SketchObject", "Sketch016")
sketch17.AttachmentSupport = (doc.getObject("XZ_Plane004"), [""])
sketch17.MapMode = "FlatFace"
sketch17.AttachmentOffset = App.Placement(App.Vector(0, 0, 24), App.Rotation())
sketch17.addGeometry(Part.Circle(App.Vector(34, -29.5, 0), App.Vector(0, 0, 1), 1.5), False)
sketch17.addGeometry(Part.Circle(App.Vector(34, 29.5, 0), App.Vector(0, 0, 1), 1.5), False)
sketch17.addGeometry(Part.Circle(App.Vector(-50.5, 30, 0), App.Vector(0, 0, 1), 1.5), False)
sketch17.addGeometry(Part.Circle(App.Vector(-50.5, -30, 0), App.Vector(0, 0, 1), 1.5), False)
sketch17.addConstraint(Sketcher.Constraint("Equal", 0, 1))
sketch17.addConstraint(Sketcher.Constraint("Equal", 1, 2))
sketch17.addConstraint(Sketcher.Constraint("Equal", 2, 3))
sketch17.addConstraint(Sketcher.Constraint("Symmetric", 0, 3, 1, 3, -1))
sketch17.addConstraint(Sketcher.Constraint("Symmetric", 2, 3, 3, 3, -1))
sketch17.addConstraint(Sketcher.Constraint("Diameter", 0, 3.0))
sketch17.addConstraint(Sketcher.Constraint("DistanceX", -1, 1, 0, 3, 34.0))
sketch17.addConstraint(Sketcher.Constraint("DistanceY", -1, 1, 2, 3, 30.0))
sketch17.addConstraint(Sketcher.Constraint("DistanceY", 0, 3, 1, 3, 59.0))
sketch17.addConstraint(Sketcher.Constraint("DistanceX", 2, 3, -1, 1, 50.5))
pocket4 = body5.newObject("PartDesign::Pocket", "Pocket003")
pocket4.Profile = sketch17
pocket4.Type = "ThroughAll"
pocket4.Midplane = True

doc.recompute()
